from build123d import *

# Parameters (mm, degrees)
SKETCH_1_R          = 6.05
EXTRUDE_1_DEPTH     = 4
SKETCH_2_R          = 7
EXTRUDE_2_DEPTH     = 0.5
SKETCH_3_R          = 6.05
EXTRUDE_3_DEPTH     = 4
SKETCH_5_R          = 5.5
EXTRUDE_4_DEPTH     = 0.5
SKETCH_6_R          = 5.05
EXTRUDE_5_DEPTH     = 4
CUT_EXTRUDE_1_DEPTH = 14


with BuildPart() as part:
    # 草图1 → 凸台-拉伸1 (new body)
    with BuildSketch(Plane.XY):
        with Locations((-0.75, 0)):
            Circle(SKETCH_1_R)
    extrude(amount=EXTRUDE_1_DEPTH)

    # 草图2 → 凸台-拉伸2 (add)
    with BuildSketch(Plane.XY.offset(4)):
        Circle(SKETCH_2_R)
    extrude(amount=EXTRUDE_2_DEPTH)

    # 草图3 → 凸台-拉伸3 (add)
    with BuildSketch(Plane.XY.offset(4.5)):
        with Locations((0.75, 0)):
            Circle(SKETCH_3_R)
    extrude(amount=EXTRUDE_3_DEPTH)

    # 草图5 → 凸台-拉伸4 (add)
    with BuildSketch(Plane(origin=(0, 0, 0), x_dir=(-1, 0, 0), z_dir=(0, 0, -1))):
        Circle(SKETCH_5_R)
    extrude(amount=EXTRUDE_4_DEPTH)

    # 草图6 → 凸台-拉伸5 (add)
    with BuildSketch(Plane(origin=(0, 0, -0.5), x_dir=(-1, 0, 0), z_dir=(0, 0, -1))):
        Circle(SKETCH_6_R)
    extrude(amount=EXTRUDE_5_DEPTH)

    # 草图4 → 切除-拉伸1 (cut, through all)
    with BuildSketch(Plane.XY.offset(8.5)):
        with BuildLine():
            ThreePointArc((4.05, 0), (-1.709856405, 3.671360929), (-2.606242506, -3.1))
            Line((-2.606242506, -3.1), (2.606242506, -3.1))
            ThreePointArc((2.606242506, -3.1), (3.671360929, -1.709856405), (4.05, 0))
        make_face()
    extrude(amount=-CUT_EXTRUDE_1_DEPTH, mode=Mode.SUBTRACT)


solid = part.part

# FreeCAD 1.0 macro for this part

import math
import FreeCAD as App
import Part
import Sketcher

doc = App.newDocument("Part")
body = doc.addObject("PartDesign::Body", "Body")

# Sketch on XY plane
sketch1 = body.newObject("Sketcher::SketchObject", "Sketch")
sketch1.AttachmentSupport = (doc.getObject("XY_Plane"), [""])
sketch1.MapMode = "FlatFace"
sketch1.addGeometry(Part.Circle(App.Vector(-1, 0, 0), App.Vector(0, 0, 1), 6), False)
sketch1.addConstraint(Sketcher.Constraint("PointOnObject", 0, 3, -1))
sketch1.addConstraint(Sketcher.Constraint("Diameter", 0, 12.1))
sketch1.addConstraint(Sketcher.Constraint("DistanceX", 0, 3, -1, 1, 0.75))
pad1 = body.newObject("PartDesign::Pad", "Pad")
pad1.Profile = sketch1
pad1.Length = 4

# Sketch on XY plane
sketch2 = body.newObject("Sketcher::SketchObject", "Sketch001")
sketch2.AttachmentSupport = (doc.getObject("XY_Plane"), [""])
sketch2.MapMode = "FlatFace"
sketch2.AttachmentOffset = App.Placement(App.Vector(0, 0, 4), App.Rotation())
sketch2.addGeometry(Part.Circle(App.Vector(0, 0, 0), App.Vector(0, 0, 1), 7), False)
sketch2.addConstraint(Sketcher.Constraint("Coincident", 0, 3, -1, 1))
sketch2.addConstraint(Sketcher.Constraint("Diameter", 0, 14.0))
pad2 = body.newObject("PartDesign::Pad", "Pad001")
pad2.Profile = sketch2
pad2.Length = 0.5

# Sketch on XY plane
sketch3 = body.newObject("Sketcher::SketchObject", "Sketch002")
sketch3.AttachmentSupport = (doc.getObject("XY_Plane"), [""])
sketch3.MapMode = "FlatFace"
sketch3.AttachmentOffset = App.Placement(App.Vector(0, 0, 4.5), App.Rotation())
sketch3.addGeometry(Part.Circle(App.Vector(1, 0, 0), App.Vector(0, 0, 1), 6), False)
sketch3.addConstraint(Sketcher.Constraint("PointOnObject", 0, 3, -1))
sketch3.addConstraint(Sketcher.Constraint("Diameter", 0, 12.1))
sketch3.addConstraint(Sketcher.Constraint("DistanceX", -1, 1, 0, 3, 0.75))
pad3 = body.newObject("PartDesign::Pad", "Pad002")
pad3.Profile = sketch3
pad3.Length = 4

# Sketch on XY plane
sketch4 = body.newObject("Sketcher::SketchObject", "Sketch003")
sketch4.AttachmentSupport = (doc.getObject("XY_Plane"), [""])
sketch4.MapMode = "FlatFace"
sketch4.addGeometry(Part.Circle(App.Vector(0, 0, 0), App.Vector(0, 0, 1), 6), False)
sketch4.addConstraint(Sketcher.Constraint("Coincident", 0, 3, -1, 1))
sketch4.addConstraint(Sketcher.Constraint("Diameter", 0, 11.0))
pad4 = body.newObject("PartDesign::Pad", "Pad003")
pad4.Profile = sketch4
pad4.Length = 0.5
pad4.Reversed = True

# Sketch on XY plane
sketch5 = body.newObject("Sketcher::SketchObject", "Sketch004")
sketch5.AttachmentSupport = (doc.getObject("XY_Plane"), [""])
sketch5.MapMode = "FlatFace"
sketch5.AttachmentOffset = App.Placement(App.Vector(0, 0, -0.5), App.Rotation())
sketch5.addGeometry(Part.Circle(App.Vector(0, 0, 0), App.Vector(0, 0, 1), 5), False)
sketch5.addConstraint(Sketcher.Constraint("Coincident", 0, 3, -1, 1))
sketch5.addConstraint(Sketcher.Constraint("Diameter", 0, 10.1))
pad5 = body.newObject("PartDesign::Pad", "Pad004")
pad5.Profile = sketch5
pad5.Length = 4
pad5.Reversed = True

# Sketch on XY plane
sketch6 = body.newObject("Sketcher::SketchObject", "Sketch005")
sketch6.AttachmentSupport = (doc.getObject("XY_Plane"), [""])
sketch6.MapMode = "FlatFace"
sketch6.AttachmentOffset = App.Placement(App.Vector(0, 0, 8.5), App.Rotation())
sketch6.addGeometry(Part.ArcOfCircle(Part.Circle(App.Vector(0, 0, 0), App.Vector(0, 0, 1), 4), math.radians(0), math.radians(230)), False)
sketch6.addGeometry(Part.LineSegment(App.Vector(-2.6, -3.1, 0), App.Vector(2.6, -3.1, 0)), False)
sketch6.addGeometry(Part.ArcOfCircle(Part.Circle(App.Vector(0, 0, 0), App.Vector(0, 0, 1), 4.1), math.radians(-50), math.radians(0)), False)
sketch6.addConstraint(Sketcher.Constraint("Coincident", 0, 2, 1, 1))
sketch6.addConstraint(Sketcher.Constraint("Coincident", 1, 2, 2, 1))
sketch6.addConstraint(Sketcher.Constraint("Tangent", 2, 2, 0, 1))
sketch6.addConstraint(Sketcher.Constraint("Horizontal", 1))
sketch6.addConstraint(Sketcher.Constraint("Coincident", 0, 3, -1, 1))
sketch6.addConstraint(Sketcher.Constraint("Equal", 0, 2))
sketch6.addConstraint(Sketcher.Constraint("PointOnObject", 2, 2, -1))
sketch6.addConstraint(Sketcher.Constraint("Radius", 0, 4.05))
sketch6.addConstraint(Sketcher.Constraint("DistanceY", 0, 2, -1, 1, 3.1))
pocket1 = body.newObject("PartDesign::Pocket", "Pocket")
pocket1.Profile = sketch6
pocket1.Type = "ThroughAll"

doc.recompute()
